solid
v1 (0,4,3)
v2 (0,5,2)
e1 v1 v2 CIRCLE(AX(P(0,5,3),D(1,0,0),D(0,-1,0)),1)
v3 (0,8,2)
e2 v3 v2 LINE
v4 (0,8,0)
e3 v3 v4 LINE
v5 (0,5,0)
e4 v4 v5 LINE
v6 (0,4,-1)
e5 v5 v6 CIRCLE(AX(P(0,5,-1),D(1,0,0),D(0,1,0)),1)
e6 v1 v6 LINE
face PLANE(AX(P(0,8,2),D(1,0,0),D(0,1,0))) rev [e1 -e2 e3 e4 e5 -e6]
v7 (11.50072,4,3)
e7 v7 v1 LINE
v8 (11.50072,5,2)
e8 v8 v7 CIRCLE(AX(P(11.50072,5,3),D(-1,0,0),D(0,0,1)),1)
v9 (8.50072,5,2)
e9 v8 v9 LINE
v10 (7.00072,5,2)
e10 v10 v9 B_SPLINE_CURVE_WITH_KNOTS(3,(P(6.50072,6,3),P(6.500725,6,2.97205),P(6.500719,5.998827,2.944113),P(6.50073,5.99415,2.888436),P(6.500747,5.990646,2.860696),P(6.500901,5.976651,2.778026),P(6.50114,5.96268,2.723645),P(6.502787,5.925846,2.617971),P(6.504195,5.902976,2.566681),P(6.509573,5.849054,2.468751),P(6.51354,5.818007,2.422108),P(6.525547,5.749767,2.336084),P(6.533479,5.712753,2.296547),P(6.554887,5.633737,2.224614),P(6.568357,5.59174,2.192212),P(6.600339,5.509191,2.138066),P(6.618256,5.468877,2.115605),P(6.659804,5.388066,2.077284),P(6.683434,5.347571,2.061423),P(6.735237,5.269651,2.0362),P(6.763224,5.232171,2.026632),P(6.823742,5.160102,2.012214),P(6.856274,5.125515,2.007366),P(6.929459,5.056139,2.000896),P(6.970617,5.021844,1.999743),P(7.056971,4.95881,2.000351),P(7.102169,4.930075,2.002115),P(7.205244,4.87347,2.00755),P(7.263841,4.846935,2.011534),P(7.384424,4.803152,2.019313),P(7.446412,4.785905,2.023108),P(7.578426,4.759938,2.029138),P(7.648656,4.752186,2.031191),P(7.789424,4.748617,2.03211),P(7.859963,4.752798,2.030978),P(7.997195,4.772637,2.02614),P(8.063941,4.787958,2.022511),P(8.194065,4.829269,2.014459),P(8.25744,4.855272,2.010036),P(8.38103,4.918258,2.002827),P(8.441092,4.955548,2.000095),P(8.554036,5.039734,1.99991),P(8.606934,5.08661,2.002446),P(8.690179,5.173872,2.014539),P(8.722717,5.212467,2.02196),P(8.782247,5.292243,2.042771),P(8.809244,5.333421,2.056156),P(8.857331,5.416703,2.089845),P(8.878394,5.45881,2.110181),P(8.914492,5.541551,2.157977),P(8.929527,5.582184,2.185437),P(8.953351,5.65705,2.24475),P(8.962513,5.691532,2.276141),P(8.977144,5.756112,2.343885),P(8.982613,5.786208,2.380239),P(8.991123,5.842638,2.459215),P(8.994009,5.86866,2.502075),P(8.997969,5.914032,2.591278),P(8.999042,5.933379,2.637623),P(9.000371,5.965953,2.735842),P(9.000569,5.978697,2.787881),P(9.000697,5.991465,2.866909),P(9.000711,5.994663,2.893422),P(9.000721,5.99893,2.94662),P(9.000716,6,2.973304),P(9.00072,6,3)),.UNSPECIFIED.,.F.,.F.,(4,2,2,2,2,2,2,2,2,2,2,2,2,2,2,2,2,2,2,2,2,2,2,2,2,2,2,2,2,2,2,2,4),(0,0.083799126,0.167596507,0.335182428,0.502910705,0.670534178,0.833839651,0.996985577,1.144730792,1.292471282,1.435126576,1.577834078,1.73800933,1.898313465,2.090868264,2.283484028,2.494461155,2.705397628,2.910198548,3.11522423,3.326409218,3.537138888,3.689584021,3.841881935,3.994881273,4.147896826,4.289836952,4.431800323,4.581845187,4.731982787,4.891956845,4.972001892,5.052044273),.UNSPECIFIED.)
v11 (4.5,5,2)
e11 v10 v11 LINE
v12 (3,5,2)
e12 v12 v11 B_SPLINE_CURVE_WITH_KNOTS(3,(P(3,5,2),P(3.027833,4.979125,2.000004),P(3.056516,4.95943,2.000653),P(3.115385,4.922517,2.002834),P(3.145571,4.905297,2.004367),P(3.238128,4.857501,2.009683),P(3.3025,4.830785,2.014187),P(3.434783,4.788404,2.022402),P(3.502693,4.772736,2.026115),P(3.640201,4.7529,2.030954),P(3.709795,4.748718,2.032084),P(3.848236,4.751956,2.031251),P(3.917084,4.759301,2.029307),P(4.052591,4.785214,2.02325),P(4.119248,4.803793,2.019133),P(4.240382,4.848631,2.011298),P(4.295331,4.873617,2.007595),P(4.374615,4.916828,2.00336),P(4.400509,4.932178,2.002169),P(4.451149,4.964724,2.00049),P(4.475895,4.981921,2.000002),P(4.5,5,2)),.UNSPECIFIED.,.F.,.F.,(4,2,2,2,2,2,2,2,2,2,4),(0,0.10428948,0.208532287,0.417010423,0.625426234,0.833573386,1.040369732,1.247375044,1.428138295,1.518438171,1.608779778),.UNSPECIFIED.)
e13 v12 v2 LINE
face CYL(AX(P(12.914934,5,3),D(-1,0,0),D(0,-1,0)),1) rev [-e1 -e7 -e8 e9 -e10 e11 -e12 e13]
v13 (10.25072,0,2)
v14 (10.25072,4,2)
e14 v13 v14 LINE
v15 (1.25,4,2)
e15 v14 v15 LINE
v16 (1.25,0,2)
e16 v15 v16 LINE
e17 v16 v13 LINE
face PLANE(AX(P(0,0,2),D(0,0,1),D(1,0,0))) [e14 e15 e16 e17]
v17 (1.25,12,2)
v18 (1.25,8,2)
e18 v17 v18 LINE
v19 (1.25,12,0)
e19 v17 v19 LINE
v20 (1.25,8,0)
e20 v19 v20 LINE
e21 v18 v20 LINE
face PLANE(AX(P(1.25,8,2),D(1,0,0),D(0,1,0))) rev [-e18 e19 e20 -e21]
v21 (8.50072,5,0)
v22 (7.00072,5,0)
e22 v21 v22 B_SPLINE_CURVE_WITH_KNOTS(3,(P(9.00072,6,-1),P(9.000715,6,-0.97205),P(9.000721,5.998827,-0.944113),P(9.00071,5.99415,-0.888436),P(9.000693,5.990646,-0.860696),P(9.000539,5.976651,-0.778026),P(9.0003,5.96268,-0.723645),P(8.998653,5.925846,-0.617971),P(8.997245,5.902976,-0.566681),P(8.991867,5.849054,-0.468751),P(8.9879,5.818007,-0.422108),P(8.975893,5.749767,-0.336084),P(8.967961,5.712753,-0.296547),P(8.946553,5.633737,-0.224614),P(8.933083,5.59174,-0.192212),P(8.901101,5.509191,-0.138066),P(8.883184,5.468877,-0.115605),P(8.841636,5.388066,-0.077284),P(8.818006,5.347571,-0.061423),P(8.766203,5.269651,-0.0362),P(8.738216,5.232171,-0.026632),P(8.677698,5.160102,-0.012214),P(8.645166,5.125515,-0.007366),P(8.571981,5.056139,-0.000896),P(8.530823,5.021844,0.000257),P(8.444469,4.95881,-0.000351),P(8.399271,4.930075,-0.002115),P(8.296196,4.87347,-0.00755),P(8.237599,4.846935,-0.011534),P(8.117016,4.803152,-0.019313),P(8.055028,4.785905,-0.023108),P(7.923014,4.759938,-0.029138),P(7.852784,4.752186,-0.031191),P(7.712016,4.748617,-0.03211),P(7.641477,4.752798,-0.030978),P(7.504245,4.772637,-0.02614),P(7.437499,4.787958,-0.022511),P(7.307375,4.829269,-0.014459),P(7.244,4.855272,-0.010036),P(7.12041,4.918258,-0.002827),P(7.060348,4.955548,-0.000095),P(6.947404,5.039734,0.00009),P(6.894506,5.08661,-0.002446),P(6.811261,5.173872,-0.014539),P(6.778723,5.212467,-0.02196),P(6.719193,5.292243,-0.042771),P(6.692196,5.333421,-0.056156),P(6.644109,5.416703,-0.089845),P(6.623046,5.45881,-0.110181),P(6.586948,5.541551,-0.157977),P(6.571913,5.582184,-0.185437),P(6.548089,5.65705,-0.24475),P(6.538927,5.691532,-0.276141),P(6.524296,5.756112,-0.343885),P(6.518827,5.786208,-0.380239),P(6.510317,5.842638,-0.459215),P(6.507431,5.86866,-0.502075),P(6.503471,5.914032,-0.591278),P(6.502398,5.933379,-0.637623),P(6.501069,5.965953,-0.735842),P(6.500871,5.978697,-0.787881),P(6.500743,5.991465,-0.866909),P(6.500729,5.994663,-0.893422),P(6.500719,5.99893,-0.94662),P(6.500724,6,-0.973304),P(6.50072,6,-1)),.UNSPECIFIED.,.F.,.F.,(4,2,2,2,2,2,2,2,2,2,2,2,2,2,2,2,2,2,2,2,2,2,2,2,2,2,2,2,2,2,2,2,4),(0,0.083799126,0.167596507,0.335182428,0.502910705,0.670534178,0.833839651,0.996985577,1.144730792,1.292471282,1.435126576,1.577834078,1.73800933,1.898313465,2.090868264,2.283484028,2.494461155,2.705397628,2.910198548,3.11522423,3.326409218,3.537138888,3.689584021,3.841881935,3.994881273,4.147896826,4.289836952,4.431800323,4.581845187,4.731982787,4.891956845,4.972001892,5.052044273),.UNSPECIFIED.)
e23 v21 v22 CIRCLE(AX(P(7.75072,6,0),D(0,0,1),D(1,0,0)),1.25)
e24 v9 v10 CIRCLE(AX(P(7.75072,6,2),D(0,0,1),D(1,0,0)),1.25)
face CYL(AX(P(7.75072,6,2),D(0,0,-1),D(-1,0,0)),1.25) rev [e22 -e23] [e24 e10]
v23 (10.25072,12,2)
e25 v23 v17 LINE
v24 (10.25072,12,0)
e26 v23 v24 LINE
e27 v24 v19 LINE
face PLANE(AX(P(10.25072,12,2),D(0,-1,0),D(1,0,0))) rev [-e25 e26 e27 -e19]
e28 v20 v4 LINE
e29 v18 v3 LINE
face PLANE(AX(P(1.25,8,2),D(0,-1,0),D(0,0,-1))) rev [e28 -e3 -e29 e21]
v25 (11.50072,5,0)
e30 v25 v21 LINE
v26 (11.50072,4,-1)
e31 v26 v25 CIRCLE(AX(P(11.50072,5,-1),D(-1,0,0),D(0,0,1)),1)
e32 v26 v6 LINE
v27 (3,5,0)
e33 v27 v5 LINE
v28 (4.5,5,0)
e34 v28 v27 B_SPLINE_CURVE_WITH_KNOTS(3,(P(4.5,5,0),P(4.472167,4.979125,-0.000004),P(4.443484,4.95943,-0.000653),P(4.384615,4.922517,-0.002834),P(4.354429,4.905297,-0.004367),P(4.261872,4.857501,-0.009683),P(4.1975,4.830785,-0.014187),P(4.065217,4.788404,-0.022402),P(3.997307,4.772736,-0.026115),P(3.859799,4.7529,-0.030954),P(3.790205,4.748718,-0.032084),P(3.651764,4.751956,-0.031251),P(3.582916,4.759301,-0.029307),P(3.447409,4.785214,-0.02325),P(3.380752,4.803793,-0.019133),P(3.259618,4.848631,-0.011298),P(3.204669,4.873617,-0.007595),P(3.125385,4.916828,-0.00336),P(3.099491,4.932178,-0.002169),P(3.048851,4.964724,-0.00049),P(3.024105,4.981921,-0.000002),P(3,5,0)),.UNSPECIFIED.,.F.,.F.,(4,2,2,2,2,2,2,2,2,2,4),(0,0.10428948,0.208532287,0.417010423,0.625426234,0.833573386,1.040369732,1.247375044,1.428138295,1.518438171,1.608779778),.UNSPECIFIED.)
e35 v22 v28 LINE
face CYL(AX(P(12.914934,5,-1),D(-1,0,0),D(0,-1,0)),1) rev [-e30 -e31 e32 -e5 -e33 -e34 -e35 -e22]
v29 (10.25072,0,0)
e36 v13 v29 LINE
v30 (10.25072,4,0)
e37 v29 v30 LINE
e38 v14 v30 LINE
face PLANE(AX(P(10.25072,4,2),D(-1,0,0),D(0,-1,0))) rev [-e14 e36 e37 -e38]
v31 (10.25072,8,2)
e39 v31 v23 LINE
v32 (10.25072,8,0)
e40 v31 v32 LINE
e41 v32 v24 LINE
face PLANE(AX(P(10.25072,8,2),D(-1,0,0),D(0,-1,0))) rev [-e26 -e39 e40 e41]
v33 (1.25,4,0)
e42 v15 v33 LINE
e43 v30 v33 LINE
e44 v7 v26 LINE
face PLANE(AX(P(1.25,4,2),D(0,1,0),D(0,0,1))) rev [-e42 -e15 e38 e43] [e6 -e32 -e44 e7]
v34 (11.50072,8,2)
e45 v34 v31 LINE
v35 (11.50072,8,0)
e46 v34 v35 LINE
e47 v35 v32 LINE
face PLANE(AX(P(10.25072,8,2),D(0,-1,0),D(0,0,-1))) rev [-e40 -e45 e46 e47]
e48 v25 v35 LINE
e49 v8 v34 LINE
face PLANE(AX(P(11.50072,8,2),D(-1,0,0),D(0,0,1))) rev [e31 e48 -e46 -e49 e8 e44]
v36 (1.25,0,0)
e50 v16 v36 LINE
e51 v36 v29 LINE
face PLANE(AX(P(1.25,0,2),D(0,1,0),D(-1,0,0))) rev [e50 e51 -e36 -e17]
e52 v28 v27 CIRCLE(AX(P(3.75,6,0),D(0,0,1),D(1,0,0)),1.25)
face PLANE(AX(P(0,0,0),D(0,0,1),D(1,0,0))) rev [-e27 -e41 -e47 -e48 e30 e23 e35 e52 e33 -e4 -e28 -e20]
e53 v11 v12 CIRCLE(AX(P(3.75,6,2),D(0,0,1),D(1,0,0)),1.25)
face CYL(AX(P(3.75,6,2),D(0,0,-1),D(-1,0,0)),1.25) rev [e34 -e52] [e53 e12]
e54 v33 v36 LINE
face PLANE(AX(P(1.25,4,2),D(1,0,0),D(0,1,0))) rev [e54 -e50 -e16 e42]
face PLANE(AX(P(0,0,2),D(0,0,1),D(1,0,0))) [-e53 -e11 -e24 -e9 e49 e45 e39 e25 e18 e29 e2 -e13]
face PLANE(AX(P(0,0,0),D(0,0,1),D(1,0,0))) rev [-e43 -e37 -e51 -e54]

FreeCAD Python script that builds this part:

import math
import FreeCAD as App
import Part
import Sketcher
Q = App.Units.Quantity

doc = App.newDocument("Part")
body = doc.addObject("PartDesign::Body", "Body")

sketch1 = body.newObject("Sketcher::SketchObject", "Sketch")
sketch1.AttachmentSupport = (doc.getObject("XY_Plane"), [""])
sketch1.MapMode = "FlatFace"
sketch1.addGeometry([
    Part.LineSegment(App.Vector(0, 4, 0), App.Vector(1.25, 4, 0)),
    Part.LineSegment(App.Vector(1.25, 4, 0), App.Vector(1.25, 0, 0)),
    Part.LineSegment(App.Vector(1.25, 0, 0), App.Vector(10.25072, 0, 0)),
    Part.LineSegment(App.Vector(10.25072, 0, 0), App.Vector(10.25072, 4, 0)),
    Part.LineSegment(App.Vector(10.25072, 4, 0), App.Vector(11.50072, 4, 0)),
    Part.LineSegment(App.Vector(11.50072, 4, 0), App.Vector(11.50072, 8, 0)),
    Part.LineSegment(App.Vector(11.50072, 8, 0), App.Vector(10.25072, 8, 0)),
    Part.LineSegment(App.Vector(10.25072, 8, 0), App.Vector(10.25072, 12, 0)),
    Part.LineSegment(App.Vector(10.25072, 12, 0), App.Vector(1.25, 12, 0)),
    Part.LineSegment(App.Vector(1.25, 12, 0), App.Vector(1.25, 8, 0)),
    Part.LineSegment(App.Vector(1.25, 8, 0), App.Vector(0, 8, 0)),
    Part.LineSegment(App.Vector(0, 8, 0), App.Vector(0, 4, 0)),
    Part.Circle(App.Vector(7.75072, 6, 0), App.Vector(0, 0, 1), 1.25),
    Part.Circle(App.Vector(3.75, 6, 0), App.Vector(0, 0, 1), 1.25),
], False)
sketch1.addConstraint([
    Sketcher.Constraint("Coincident", 0, 2, 1, 1),
    Sketcher.Constraint("Coincident", 1, 2, 2, 1),
    Sketcher.Constraint("Coincident", 2, 2, 3, 1),
    Sketcher.Constraint("Coincident", 3, 2, 4, 1),
    Sketcher.Constraint("Coincident", 4, 2, 5, 1),
    Sketcher.Constraint("Coincident", 5, 2, 6, 1),
    Sketcher.Constraint("Coincident", 6, 2, 7, 1),
    Sketcher.Constraint("Coincident", 7, 2, 8, 1),
    Sketcher.Constraint("Coincident", 8, 2, 9, 1),
    Sketcher.Constraint("Coincident", 9, 2, 10, 1),
    Sketcher.Constraint("Coincident", 10, 2, 11, 1),
    Sketcher.Constraint("Coincident", 11, 2, 0, 1),
    Sketcher.Constraint("Horizontal", 0),
    Sketcher.Constraint("Vertical", 1),
    Sketcher.Constraint("Horizontal", 2),
    Sketcher.Constraint("Vertical", 3),
    Sketcher.Constraint("Horizontal", 4),
    Sketcher.Constraint("Vertical", 5),
    Sketcher.Constraint("Horizontal", 6),
    Sketcher.Constraint("Vertical", 7),
    Sketcher.Constraint("Horizontal", 8),
    Sketcher.Constraint("Vertical", 9),
    Sketcher.Constraint("Horizontal", 10),
    Sketcher.Constraint("Vertical", 11),
    Sketcher.Constraint("Equal", 12, 13),
    Sketcher.Constraint("PointOnObject", 1, 2, -1),
    Sketcher.Constraint("PointOnObject", 10, 2, -2),
    Sketcher.Constraint("Horizontal", 12, 3, 13, 3),
    Sketcher.Constraint("Horizontal", 0, 2, 3, 2),
    Sketcher.Constraint("Horizontal", 6, 2, 9, 2),
    Sketcher.Constraint("Vertical", 3, 2, 6, 2),
    Sketcher.Constraint("Vertical", 1, 2, 8, 2),
    Sketcher.Constraint("Equal", 0, 4),
    Sketcher.Constraint("Equal", 3, 5),
    Sketcher.Constraint("Equal", 5, 7),
    Sketcher.Constraint("Diameter", 12, Q("2.5 mm")),
    Sketcher.Constraint("DistanceY", 1, 2, 1, 1, Q("4 mm")),
    Sketcher.Constraint("DistanceY", -1, 1, 12, 3, Q("6 mm")),
    Sketcher.Constraint("DistanceX", 0, 1, 0, 2, Q("1.25 mm")),
    Sketcher.Constraint("DistanceX", 0, 2, 13, 3, Q("2.5 mm")),
    Sketcher.Constraint("DistanceX", 12, 3, 2, 2, Q("2.5 mm")),
    Sketcher.Constraint("DistanceX", 2, 1, 2, 2, Q("9.00072 mm")),
])
pad1 = body.newObject("PartDesign::Pad", "Pad")
pad1.Profile = sketch1
pad1.Length = 2

sketch2 = body.newObject("Sketcher::SketchObject", "Sketch001")
sketch2.AttachmentSupport = (doc.getObject("YZ_Plane"), [""])
sketch2.MapMode = "FlatFace"
sketch2.addGeometry([
    Part.LineSegment(App.Vector(5, 2, 0), App.Vector(4, 2, 0)),
    Part.LineSegment(App.Vector(4, 2, 0), App.Vector(4, 3, 0)),
    Part.ArcOfCircle(Part.Circle(App.Vector(5, 3, 0), App.Vector(0, 0, 1), 1), math.radians(-180), math.radians(-90)),
    Part.LineSegment(App.Vector(4, -1, 0), App.Vector(4, 0, 0)),
    Part.LineSegment(App.Vector(4, 0, 0), App.Vector(5, 0, 0)),
    Part.ArcOfCircle(Part.Circle(App.Vector(5, -1, 0), App.Vector(0, 0, 1), 1), math.radians(90), math.radians(180)),
], False)
sketch2.addConstraint([
    Sketcher.Constraint("Coincident", 0, 2, 1, 1),
    Sketcher.Constraint("Tangent", 1, 2, 2, 1),
    Sketcher.Constraint("Tangent", 2, 2, 0, 1),
    Sketcher.Constraint("Coincident", 3, 2, 4, 1),
    Sketcher.Constraint("Tangent", 4, 2, 5, 1),
    Sketcher.Constraint("Tangent", 5, 2, 3, 1),
    Sketcher.Constraint("Horizontal", 0),
    Sketcher.Constraint("Vertical", 1),
    Sketcher.Constraint("Vertical", 3),
    Sketcher.Constraint("Horizontal", 4),
    Sketcher.Constraint("Equal", 2, 5),
    Sketcher.Constraint("PointOnObject", 3, 2, -1),
    Sketcher.Constraint("Vertical", 2, 3, 5, 3),
    Sketcher.Constraint("Radius", 2, Q("1 mm")),
    Sketcher.Constraint("DistanceX", -1, 1, 2, 3, Q("5 mm")),
    Sketcher.Constraint("DistanceY", -1, 1, 2, 3, Q("3 mm")),
])
pad2 = body.newObject("PartDesign::Pad", "Pad001")
pad2.Profile = sketch2
pad2.Length = 11.50072

sketch3 = body.newObject("Sketcher::SketchObject", "Sketch002")
sketch3.AttachmentSupport = (doc.getObject("XY_Plane"), [""])
sketch3.MapMode = "FlatFace"
sketch3.AttachmentOffset = App.Placement(App.Vector(0, 0, 2), App.Rotation())
sketch3.addGeometry([
    Part.Circle(App.Vector(3.75, 6, 0), App.Vector(0, 0, 1), 1.25),
    Part.Circle(App.Vector(7.75072, 6, 0), App.Vector(0, 0, 1), 1.25),
], False)
sketch3.addConstraint([
    Sketcher.Constraint("Equal", 0, 1),
    Sketcher.Constraint("Horizontal", 0, 3, 1, 3),
    Sketcher.Constraint("Diameter", 0, Q("2.5 mm")),
    Sketcher.Constraint("DistanceY", -1, 1, 0, 3, Q("6 mm")),
    Sketcher.Constraint("DistanceX", -1, 1, 0, 3, Q("3.75 mm")),
    Sketcher.Constraint("DistanceX", -1, 1, 1, 3, Q("7.75072 mm")),
])
pocket1 = body.newObject("PartDesign::Pocket", "Pocket")
pocket1.Profile = sketch3
pocket1.Type = "ThroughAll"
pocket1.Midplane = True

doc.recompute()
